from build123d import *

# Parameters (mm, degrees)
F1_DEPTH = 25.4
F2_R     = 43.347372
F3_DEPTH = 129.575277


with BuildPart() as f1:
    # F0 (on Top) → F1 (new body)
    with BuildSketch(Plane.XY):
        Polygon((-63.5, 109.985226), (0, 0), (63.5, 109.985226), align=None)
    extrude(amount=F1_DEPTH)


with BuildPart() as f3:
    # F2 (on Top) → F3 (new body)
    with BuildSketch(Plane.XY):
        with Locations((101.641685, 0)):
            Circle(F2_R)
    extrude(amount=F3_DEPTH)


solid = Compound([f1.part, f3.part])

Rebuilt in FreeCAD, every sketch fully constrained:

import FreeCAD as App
import Part
import Sketcher
Q = App.Units.Quantity


def add_polygon(sketch, points):
    """Adds a closed chain of lines whose ends are joined by coincident constraints."""
    first, n = sketch.GeometryCount, len(points)
    for a, b in zip(points, points[1:] + points[:1]):
        sketch.addGeometry(Part.LineSegment(App.Vector(*a, 0), App.Vector(*b, 0)), False)
    for i in range(n):
        sketch.addConstraint(Sketcher.Constraint("Coincident", first + i, 2, first + (i + 1) % n, 1))

doc = App.newDocument("Part")
body = doc.addObject("PartDesign::Body", "Body")

sketch1 = doc.addObject("Sketcher::SketchObject", "Sketch")
body.addObject(sketch1)
sketch1.AttachmentSupport = (doc.XY_Plane, [""])
sketch1.MapMode = "FlatFace"
add_polygon(sketch1, [(-64, 110), (0, 0), (64, 110)])
sketch1.addConstraint(Sketcher.Constraint("Horizontal", 2))
sketch1.addConstraint(Sketcher.Constraint("Coincident", 0, 2, -1, 1))
sketch1.addConstraint(Sketcher.Constraint("Equal", 0, 1))
sketch1.addConstraint(Sketcher.Constraint("DistanceX", 2, 2, 2, 1, Q("5 in")))
sketch1.addConstraint(Sketcher.Constraint("Distance", 0, Q("5 in")))
pad1 = doc.addObject("PartDesign::Pad", "Pad")
body.addObject(pad1)
pad1.Profile = sketch1
pad1.Length = Q("1 in")
body2 = doc.addObject("PartDesign::Body", "Body001")

sketch2 = doc.addObject("Sketcher::SketchObject", "Sketch001")
body2.addObject(sketch2)
sketch2.AttachmentSupport = (doc.getObject("XY_Plane001"), [""])
sketch2.MapMode = "FlatFace"
sketch2.addGeometry(Part.Circle(App.Vector(102, 0, 0), App.Vector(0, 0, 1), 43), False)
sketch2.addConstraint(Sketcher.Constraint("PointOnObject", 0, 3, -1))
sketch2.addConstraint(Sketcher.Constraint("Diameter", 0, Q("86.694744 mm")))
sketch2.addConstraint(Sketcher.Constraint("DistanceX", -1, 1, 0, 3, Q("101.641685 mm")))
pad2 = doc.addObject("PartDesign::Pad", "Pad001")
body2.addObject(pad2)
pad2.Profile = sketch2
pad2.Length = 129.575277

doc.recompute()
